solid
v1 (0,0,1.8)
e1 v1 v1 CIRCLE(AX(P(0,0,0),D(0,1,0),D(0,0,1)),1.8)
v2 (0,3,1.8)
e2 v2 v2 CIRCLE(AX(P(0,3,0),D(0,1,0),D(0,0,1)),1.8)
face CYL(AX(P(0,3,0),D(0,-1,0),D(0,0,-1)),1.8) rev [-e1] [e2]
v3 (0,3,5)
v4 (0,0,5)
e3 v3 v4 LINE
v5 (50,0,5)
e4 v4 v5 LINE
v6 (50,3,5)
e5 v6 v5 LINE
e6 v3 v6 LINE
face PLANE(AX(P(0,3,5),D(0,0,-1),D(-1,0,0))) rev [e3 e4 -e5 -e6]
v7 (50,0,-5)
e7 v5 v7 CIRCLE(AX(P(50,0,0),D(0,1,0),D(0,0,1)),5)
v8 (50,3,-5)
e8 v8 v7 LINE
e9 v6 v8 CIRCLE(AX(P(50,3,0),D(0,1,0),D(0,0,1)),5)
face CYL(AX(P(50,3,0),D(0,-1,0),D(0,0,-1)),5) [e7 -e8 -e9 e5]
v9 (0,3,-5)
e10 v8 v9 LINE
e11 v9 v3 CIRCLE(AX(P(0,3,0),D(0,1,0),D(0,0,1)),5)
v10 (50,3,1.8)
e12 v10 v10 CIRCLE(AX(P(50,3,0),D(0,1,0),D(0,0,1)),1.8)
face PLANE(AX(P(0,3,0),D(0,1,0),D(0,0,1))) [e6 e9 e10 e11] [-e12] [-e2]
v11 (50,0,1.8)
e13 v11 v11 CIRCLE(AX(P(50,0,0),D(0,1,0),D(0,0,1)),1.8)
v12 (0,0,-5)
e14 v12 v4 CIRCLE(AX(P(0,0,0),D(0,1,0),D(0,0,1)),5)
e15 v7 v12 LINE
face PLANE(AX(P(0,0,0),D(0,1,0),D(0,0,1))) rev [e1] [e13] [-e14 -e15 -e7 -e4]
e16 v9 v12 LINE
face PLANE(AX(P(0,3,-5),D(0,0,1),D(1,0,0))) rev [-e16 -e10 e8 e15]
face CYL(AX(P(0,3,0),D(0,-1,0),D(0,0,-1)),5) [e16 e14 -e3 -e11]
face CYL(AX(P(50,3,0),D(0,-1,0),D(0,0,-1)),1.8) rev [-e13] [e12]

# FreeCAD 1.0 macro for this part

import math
import FreeCAD as App
import Part
import Sketcher
from FreeCAD import Vector
Q = App.Units.Quantity

doc = App.newDocument("Part")
params = doc.addObject("Spreadsheet::Sheet", "Params")
for row, (alias, value) in enumerate([
    ("sketch1_radius", "5 mm"),
    ("sketch1_diameter", "3.6 mm"),
    ("sketch1_width", "50 mm"),
    ("pad1_length", "3 mm"),
], start=1):
    params.set(f"A{row}", alias)
    params.set(f"B{row}", "=" + value)
    params.setAlias(f"B{row}", alias)

body = doc.addObject("PartDesign::Body", "Body")

# Sketch on XZ plane
sketch1 = body.newObject("Sketcher::SketchObject", "Sketch")
sketch1.AttachmentSupport = (doc.getObject("XZ_Plane"), [""])
sketch1.MapMode = "FlatFace"
sketch1.addGeometry(Part.LineSegment(Vector(50, -5, 0), Vector(0, -5, 0)), False)
sketch1.addGeometry(Part.ArcOfCircle(Part.Circle(Vector(0, 0, 0), Vector(0, 0, 1), 5), math.radians(90), math.radians(270)), False)
sketch1.addGeometry(Part.LineSegment(Vector(0, 5, 0), Vector(50, 5, 0)), False)
sketch1.addGeometry(Part.ArcOfCircle(Part.Circle(Vector(50, 0, 0), Vector(0, 0, 1), 5), math.radians(-90), math.radians(90)), False)
sketch1.addGeometry(Part.Circle(Vector(50, 0, 0), Vector(0, 0, 1), 1.8), False)
sketch1.addGeometry(Part.Circle(Vector(0, 0, 0), Vector(0, 0, 1), 1.8), False)
sketch1.addConstraint(Sketcher.Constraint("Tangent", 0, 2, 1, 2))
sketch1.addConstraint(Sketcher.Constraint("Tangent", 1, 1, 2, 1))
sketch1.addConstraint(Sketcher.Constraint("Tangent", 2, 2, 3, 2))
sketch1.addConstraint(Sketcher.Constraint("Tangent", 3, 1, 0, 1))
sketch1.addConstraint(Sketcher.Constraint("Horizontal", 0))
sketch1.addConstraint(Sketcher.Constraint("Horizontal", 2))
sketch1.addConstraint(Sketcher.Constraint("Coincident", 1, 3, -1, 1))
sketch1.addConstraint(Sketcher.Constraint("Coincident", 5, 3, -1, 1))
sketch1.addConstraint(Sketcher.Constraint("Coincident", 4, 3, 3, 3))
sketch1.addConstraint(Sketcher.Constraint("Equal", 4, 5))
sketch1.addConstraint(Sketcher.Constraint("Radius", 1, Q("5 mm")))
sketch1.addConstraint(Sketcher.Constraint("Diameter", 4, Q("3.6 mm")))
sketch1.addConstraint(Sketcher.Constraint("DistanceX", 0, 2, 0, 1, Q("50 mm")))
sketch1.setExpression("Constraints[10]", "Params.sketch1_radius")
sketch1.setExpression("Constraints[11]", "Params.sketch1_diameter")
sketch1.setExpression("Constraints[12]", "Params.sketch1_width")
pad1 = body.newObject("PartDesign::Pad", "Pad")
pad1.Profile = sketch1
pad1.setExpression("Length", "Params.pad1_length")
pad1.Reversed = True

doc.recompute()
